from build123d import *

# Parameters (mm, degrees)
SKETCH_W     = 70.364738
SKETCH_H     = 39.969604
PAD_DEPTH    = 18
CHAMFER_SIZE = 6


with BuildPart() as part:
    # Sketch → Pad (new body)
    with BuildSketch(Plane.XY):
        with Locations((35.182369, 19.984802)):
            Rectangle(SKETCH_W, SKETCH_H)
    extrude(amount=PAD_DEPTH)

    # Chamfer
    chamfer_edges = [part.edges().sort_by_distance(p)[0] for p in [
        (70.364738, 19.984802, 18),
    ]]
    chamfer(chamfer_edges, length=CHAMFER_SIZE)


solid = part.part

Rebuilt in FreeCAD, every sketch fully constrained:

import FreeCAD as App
import Part
import Sketcher
from FreeCAD import Vector
Q = App.Units.Quantity


def edges_at(feature, points):
    """Names of the edges that pass closest to the given points."""
    edges = feature.Shape.Edges
    near = lambda p: min(range(len(edges)), key=lambda i: edges[i].distToShape(Part.Vertex(*p))[0])
    return sorted({f"Edge{near(p) + 1}" for p in points})

doc = App.newDocument("Part")
body = doc.addObject("PartDesign::Body", "Body")

# Sketch on XY plane
sketch1 = body.newObject("Sketcher::SketchObject", "Sketch")
sketch1.AttachmentSupport = (doc.getObject("XY_Plane"), [""])
sketch1.MapMode = "FlatFace"
sketch1.addGeometry([
    Part.LineSegment(Vector(0, 39.969604, 0), Vector(0, 0, 0)),
    Part.LineSegment(Vector(0, 0, 0), Vector(70.364738, 0, 0)),
    Part.LineSegment(Vector(70.364738, 0, 0), Vector(70.364738, 39.969604, 0)),
    Part.LineSegment(Vector(70.364738, 39.969604, 0), Vector(0, 39.969604, 0)),
], False)
sketch1.addConstraint([
    Sketcher.Constraint("Coincident", 0, 2, 1, 1),
    Sketcher.Constraint("Coincident", 1, 2, 2, 1),
    Sketcher.Constraint("Coincident", 2, 2, 3, 1),
    Sketcher.Constraint("Coincident", 3, 2, 0, 1),
    Sketcher.Constraint("Vertical", 0),
    Sketcher.Constraint("Horizontal", 1),
    Sketcher.Constraint("Vertical", 2),
    Sketcher.Constraint("Horizontal", 3),
    Sketcher.Constraint("Coincident", 0, 2, -1, 1),
    Sketcher.Constraint("DistanceX", 1, 1, 1, 2, Q("70.364738 mm")),
    Sketcher.Constraint("DistanceY", 0, 2, 0, 1, Q("39.969604 mm")),
])
pad1 = body.newObject("PartDesign::Pad", "Pad")
pad1.Profile = sketch1
pad1.Length = 18
doc.recompute()

chamfer = body.newObject("PartDesign::Chamfer", "Chamfer")
chamfer.Base = (pad1, edges_at(pad1, [(70.365, 19.985, 18)]))
chamfer.Size = 6

doc.recompute()
